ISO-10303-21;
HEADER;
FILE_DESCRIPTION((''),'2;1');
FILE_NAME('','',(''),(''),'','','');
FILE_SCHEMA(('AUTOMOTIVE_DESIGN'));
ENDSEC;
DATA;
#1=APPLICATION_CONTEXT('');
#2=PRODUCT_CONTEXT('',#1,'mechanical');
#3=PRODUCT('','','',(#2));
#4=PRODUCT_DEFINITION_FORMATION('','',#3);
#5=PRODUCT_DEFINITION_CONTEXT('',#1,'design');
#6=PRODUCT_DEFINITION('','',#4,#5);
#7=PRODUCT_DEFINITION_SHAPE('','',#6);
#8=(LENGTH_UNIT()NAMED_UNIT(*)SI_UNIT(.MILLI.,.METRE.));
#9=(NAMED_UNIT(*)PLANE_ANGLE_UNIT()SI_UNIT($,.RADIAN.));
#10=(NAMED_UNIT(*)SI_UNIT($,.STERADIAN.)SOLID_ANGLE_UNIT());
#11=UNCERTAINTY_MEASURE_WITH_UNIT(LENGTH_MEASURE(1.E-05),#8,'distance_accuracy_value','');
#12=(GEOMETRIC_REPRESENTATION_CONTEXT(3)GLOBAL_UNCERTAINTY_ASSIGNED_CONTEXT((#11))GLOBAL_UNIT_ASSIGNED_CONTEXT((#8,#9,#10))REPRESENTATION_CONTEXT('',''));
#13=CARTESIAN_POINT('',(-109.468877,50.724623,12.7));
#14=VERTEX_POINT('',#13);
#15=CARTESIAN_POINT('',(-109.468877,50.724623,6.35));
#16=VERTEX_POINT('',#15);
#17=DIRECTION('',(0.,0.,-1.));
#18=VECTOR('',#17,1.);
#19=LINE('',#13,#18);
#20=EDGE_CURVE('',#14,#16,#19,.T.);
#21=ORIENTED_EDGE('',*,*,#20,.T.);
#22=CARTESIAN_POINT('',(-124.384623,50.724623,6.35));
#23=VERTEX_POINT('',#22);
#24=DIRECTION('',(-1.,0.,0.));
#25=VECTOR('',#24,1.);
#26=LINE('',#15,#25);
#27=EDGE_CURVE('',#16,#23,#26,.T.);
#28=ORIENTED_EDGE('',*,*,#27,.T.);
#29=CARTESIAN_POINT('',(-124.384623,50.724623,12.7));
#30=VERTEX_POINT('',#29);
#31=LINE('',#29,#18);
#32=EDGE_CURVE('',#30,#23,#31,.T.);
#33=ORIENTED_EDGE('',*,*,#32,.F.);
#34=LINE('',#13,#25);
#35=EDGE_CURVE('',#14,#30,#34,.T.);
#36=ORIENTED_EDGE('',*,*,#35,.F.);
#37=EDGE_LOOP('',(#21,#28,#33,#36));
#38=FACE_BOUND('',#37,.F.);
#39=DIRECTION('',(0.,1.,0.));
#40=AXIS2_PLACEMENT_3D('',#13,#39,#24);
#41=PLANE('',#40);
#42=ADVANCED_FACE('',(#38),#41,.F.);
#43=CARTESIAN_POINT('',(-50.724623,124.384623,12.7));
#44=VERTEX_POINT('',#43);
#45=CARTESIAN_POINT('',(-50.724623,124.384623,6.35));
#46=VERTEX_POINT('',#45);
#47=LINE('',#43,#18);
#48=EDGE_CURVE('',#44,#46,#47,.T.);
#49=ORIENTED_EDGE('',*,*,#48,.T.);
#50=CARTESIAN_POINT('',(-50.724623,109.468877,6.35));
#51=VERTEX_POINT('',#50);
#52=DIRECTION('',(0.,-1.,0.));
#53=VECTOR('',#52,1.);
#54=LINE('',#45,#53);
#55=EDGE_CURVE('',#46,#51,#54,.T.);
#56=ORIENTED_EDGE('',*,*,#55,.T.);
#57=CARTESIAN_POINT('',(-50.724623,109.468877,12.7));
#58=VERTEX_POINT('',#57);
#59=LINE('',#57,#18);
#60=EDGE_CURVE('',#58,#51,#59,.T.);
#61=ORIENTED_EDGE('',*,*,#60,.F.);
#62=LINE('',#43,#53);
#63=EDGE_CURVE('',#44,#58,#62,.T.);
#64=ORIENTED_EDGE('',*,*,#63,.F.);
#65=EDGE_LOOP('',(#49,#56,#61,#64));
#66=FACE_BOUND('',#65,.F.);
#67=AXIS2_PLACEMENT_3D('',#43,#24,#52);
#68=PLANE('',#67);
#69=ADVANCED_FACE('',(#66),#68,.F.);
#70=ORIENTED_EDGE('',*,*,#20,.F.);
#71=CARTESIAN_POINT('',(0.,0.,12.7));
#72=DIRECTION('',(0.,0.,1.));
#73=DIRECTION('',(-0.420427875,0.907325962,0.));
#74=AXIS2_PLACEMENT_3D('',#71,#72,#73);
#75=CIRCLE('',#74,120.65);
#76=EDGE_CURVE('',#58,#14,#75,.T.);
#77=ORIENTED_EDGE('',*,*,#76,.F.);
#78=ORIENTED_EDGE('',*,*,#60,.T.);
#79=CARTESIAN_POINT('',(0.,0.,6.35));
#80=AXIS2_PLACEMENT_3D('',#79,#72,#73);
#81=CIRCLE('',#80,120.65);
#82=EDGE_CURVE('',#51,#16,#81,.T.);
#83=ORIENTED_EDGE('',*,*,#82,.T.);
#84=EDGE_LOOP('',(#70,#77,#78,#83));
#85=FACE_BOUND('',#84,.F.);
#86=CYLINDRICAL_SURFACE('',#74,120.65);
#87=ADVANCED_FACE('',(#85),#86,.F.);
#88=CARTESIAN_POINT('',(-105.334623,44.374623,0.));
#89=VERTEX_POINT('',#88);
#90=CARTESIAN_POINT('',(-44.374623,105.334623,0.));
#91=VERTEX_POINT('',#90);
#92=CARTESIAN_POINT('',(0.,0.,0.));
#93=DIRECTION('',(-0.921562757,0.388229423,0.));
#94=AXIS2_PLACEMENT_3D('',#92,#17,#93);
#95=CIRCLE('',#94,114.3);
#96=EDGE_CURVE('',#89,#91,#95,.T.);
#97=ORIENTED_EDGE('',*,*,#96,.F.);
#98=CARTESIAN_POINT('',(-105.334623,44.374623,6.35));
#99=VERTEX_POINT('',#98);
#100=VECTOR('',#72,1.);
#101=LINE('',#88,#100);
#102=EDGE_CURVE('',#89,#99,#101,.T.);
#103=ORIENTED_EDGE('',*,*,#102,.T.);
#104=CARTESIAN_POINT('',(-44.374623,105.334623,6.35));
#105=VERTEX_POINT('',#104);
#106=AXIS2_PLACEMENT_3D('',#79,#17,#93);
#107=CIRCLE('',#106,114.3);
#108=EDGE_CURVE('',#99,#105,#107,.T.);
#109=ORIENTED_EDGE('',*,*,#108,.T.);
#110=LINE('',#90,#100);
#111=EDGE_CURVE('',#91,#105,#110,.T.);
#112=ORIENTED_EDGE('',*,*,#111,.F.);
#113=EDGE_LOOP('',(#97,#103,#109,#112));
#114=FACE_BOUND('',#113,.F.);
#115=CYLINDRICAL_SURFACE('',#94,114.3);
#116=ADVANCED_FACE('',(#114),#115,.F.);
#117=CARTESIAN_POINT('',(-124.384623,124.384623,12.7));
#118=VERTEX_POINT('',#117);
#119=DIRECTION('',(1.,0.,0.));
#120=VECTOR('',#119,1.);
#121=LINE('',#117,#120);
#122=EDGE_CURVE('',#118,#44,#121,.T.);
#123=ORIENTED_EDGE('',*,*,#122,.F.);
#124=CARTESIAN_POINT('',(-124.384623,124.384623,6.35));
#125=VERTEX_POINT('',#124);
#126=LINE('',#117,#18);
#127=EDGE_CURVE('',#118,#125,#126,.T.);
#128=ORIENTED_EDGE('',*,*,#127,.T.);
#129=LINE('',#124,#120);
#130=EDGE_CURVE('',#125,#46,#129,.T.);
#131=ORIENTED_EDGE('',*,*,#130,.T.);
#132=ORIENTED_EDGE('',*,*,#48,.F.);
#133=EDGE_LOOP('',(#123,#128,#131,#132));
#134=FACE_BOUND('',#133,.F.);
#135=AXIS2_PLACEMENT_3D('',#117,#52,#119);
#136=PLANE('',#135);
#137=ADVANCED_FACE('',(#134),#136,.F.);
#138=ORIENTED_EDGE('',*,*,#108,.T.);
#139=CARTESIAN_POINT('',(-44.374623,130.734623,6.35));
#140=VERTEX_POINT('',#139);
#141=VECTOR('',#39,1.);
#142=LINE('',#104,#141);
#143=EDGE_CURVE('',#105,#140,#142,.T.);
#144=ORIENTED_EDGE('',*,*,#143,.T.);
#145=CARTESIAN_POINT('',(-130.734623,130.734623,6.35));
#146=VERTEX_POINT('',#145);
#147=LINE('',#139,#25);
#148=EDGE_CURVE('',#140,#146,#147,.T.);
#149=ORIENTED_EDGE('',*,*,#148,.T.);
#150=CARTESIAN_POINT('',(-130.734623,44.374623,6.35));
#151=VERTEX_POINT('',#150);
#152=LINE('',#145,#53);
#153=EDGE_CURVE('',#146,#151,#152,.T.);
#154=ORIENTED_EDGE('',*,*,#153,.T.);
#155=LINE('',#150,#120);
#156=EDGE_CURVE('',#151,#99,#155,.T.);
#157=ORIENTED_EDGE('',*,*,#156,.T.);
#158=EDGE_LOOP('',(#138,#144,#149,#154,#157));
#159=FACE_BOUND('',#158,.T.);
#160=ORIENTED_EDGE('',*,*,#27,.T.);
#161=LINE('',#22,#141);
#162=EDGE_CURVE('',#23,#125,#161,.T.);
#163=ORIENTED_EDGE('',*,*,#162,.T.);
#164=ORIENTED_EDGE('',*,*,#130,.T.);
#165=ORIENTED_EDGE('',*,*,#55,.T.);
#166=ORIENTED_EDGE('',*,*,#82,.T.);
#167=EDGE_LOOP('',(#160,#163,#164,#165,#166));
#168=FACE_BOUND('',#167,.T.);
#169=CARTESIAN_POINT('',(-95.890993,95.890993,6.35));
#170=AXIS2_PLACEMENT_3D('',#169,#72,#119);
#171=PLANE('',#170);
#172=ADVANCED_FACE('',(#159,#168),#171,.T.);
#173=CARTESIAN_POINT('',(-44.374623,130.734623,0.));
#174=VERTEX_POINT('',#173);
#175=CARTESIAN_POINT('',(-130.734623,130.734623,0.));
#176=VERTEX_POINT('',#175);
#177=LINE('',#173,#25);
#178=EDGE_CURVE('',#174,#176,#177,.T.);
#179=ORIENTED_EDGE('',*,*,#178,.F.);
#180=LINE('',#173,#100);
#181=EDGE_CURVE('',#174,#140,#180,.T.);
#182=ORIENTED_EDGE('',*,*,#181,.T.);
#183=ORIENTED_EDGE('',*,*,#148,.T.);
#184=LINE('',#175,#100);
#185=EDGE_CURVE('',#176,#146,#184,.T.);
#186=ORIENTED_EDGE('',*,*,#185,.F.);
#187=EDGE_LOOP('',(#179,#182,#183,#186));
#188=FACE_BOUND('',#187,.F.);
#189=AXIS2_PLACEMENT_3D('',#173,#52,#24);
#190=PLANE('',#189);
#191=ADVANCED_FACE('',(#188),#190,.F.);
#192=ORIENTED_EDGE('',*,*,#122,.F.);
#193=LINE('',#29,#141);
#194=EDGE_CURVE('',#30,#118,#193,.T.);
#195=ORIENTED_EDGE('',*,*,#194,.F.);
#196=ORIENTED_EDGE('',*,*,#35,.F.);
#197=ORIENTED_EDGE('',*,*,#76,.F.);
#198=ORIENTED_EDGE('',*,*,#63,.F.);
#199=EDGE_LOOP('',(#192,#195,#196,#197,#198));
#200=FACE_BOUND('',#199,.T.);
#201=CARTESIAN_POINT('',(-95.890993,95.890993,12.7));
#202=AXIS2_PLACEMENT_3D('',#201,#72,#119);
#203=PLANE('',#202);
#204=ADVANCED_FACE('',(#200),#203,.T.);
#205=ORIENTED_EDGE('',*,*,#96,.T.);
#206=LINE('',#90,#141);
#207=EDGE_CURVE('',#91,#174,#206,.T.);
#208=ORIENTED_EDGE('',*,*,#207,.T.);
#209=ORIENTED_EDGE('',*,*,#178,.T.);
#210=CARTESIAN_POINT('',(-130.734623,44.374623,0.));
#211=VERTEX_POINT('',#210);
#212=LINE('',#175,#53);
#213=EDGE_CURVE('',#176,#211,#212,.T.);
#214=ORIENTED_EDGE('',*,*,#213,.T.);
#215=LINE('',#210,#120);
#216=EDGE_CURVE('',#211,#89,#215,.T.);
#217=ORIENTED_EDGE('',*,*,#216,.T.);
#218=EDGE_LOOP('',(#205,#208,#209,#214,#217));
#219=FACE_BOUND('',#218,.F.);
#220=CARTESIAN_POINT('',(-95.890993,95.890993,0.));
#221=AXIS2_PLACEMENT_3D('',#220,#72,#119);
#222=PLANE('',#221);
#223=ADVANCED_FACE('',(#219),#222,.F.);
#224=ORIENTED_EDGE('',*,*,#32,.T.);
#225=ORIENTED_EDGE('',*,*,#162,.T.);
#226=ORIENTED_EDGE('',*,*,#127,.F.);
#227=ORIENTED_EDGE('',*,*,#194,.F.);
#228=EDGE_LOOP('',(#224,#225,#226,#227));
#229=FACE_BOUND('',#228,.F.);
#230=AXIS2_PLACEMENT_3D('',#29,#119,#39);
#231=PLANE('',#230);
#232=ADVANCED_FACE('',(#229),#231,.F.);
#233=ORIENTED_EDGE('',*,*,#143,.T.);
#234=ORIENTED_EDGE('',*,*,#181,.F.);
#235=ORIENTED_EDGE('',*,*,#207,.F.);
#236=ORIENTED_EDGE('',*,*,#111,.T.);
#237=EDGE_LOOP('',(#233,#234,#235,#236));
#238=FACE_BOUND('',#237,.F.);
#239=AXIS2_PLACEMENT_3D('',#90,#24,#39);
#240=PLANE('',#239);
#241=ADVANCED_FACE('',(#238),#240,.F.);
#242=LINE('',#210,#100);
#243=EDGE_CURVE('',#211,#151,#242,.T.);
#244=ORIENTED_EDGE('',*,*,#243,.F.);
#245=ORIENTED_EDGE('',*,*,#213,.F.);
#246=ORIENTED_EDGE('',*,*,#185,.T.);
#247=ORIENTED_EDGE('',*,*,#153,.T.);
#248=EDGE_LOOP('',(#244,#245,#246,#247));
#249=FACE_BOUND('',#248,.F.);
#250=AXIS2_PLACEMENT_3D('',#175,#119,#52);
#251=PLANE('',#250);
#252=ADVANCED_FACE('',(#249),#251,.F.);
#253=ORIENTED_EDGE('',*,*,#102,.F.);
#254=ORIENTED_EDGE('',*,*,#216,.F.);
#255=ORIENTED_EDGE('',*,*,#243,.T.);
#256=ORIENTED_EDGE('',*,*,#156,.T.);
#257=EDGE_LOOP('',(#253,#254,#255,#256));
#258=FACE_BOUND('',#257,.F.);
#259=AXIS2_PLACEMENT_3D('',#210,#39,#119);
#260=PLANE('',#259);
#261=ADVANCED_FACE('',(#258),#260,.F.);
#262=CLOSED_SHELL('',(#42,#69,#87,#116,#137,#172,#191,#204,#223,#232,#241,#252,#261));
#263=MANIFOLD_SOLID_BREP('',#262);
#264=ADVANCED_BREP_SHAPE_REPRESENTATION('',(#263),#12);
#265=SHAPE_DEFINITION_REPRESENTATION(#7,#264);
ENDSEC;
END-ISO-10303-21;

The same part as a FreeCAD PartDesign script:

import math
import FreeCAD as App
import Part
import Sketcher

V = App.Vector
Q = App.Units.Quantity

doc = App.newDocument("Part")
body = doc.addObject("PartDesign::Body", "Body")

sketch1 = body.newObject("Sketcher::SketchObject", "Sketch")
sketch1.AttachmentSupport = (doc.getObject("XY_Plane"), [""])
sketch1.MapMode = "FlatFace"
sketch1.addGeometry([
    Part.LineSegment(V(-44, 131, 0), V(-131, 131, 0)),
    Part.LineSegment(V(-131, 131, 0), V(-131, 44, 0)),
    Part.LineSegment(V(-131, 44, 0), V(-105, 44, 0)),
    Part.ArcOfCircle(Part.Circle(V(0, 0, 0), V(0, 0, 1), 114), math.radians(113), math.radians(157)),
    Part.LineSegment(V(-44, 105, 0), V(-44, 131, 0)),
], False)
sketch1.addConstraint([
    Sketcher.Constraint("Coincident", 0, 2, 1, 1),
    Sketcher.Constraint("Coincident", 1, 2, 2, 1),
    Sketcher.Constraint("Coincident", 2, 2, 3, 2),
    Sketcher.Constraint("Coincident", 3, 1, 4, 1),
    Sketcher.Constraint("Coincident", 4, 2, 0, 1),
    Sketcher.Constraint("Horizontal", 0),
    Sketcher.Constraint("Vertical", 1),
    Sketcher.Constraint("Horizontal", 2),
    Sketcher.Constraint("Vertical", 4),
    Sketcher.Constraint("Coincident", 3, 3, -1, 1),
    Sketcher.Constraint("Equal", 0, 1),
    Sketcher.Constraint("Equal", 2, 4),
    Sketcher.Constraint("Radius", 3, Q("4.5 in")),
    Sketcher.Constraint("DistanceX", 2, 1, 2, 2, Q("1 in")),
    Sketcher.Constraint("DistanceX", 0, 2, 0, 1, Q("3.4 in")),
])
pad1 = body.newObject("PartDesign::Pad", "Pad")
pad1.Profile = sketch1
pad1.Length = Q("0.5 in")

sketch2 = body.newObject("Sketcher::SketchObject", "Sketch001")
sketch2.AttachmentSupport = (doc.getObject("XY_Plane"), [""])
sketch2.MapMode = "FlatFace"
sketch2.AttachmentOffset = App.Placement(V(0, 0, 0.5 * 25.4), App.Rotation())
sketch2.addGeometry([
    Part.LineSegment(V(-131, 44, 0), V(-105, 44, 0)),
    Part.ArcOfCircle(Part.Circle(V(0, 0, 0), V(0, 0, 1), 114), math.radians(113), math.radians(157)),
    Part.LineSegment(V(-44, 105, 0), V(-44, 131, 0)),
    Part.LineSegment(V(-44, 131, 0), V(-131, 131, 0)),
    Part.LineSegment(V(-131, 131, 0), V(-131, 44, 0)),
    Part.LineSegment(V(-124, 51, 0), V(-124, 124, 0)),
    Part.LineSegment(V(-124, 124, 0), V(-51, 124, 0)),
    Part.LineSegment(V(-51, 124, 0), V(-51, 109, 0)),
    Part.ArcOfCircle(Part.Circle(V(0, 0, 0), V(0, 0, 1), 121), math.radians(115), math.radians(155)),
    Part.LineSegment(V(-109, 51, 0), V(-124, 51, 0)),
], False)
sketch2.addConstraint([
    Sketcher.Constraint("Coincident", 0, 2, 1, 2),
    Sketcher.Constraint("Coincident", 1, 1, 2, 1),
    Sketcher.Constraint("Coincident", 2, 2, 3, 1),
    Sketcher.Constraint("Coincident", 3, 2, 4, 1),
    Sketcher.Constraint("Coincident", 4, 2, 0, 1),
    Sketcher.Constraint("Coincident", 5, 2, 6, 1),
    Sketcher.Constraint("Coincident", 6, 2, 7, 1),
    Sketcher.Constraint("Coincident", 7, 2, 8, 1),
    Sketcher.Constraint("Coincident", 8, 2, 9, 1),
    Sketcher.Constraint("Coincident", 9, 2, 5, 1),
    Sketcher.Constraint("Horizontal", 0),
    Sketcher.Constraint("Vertical", 2),
    Sketcher.Constraint("Horizontal", 3),
    Sketcher.Constraint("Vertical", 4),
    Sketcher.Constraint("Vertical", 5),
    Sketcher.Constraint("Horizontal", 6),
    Sketcher.Constraint("Vertical", 7),
    Sketcher.Constraint("Horizontal", 9),
    Sketcher.Constraint("Coincident", 1, 3, -1, 1),
    Sketcher.Constraint("Coincident", 8, 3, -1, 1),
    Sketcher.Constraint("Equal", 0, 2),
    Sketcher.Constraint("Equal", 3, 4),
    Sketcher.Constraint("Equal", 6, 5),
    Sketcher.Constraint("Equal", 9, 7),
    Sketcher.Constraint("Radius", 1, Q("4.5 in")),
    Sketcher.Constraint("DistanceX", 0, 1, 0, 2, Q("1 in")),
    Sketcher.Constraint("Radius", 8, Q("4.75 in")),
    Sketcher.Constraint("DistanceX", 3, 2, 3, 1, Q("3.4 in")),
    Sketcher.Constraint("DistanceX", 6, 1, 6, 2, Q("2.9 in")),
    Sketcher.Constraint("DistanceX", 3, 2, 5, 2, Q("0.25 in")),
])
pocket1 = body.newObject("PartDesign::Pocket", "Pocket")
pocket1.Profile = sketch2
pocket1.Length = Q("0.25 in")

doc.recompute()
